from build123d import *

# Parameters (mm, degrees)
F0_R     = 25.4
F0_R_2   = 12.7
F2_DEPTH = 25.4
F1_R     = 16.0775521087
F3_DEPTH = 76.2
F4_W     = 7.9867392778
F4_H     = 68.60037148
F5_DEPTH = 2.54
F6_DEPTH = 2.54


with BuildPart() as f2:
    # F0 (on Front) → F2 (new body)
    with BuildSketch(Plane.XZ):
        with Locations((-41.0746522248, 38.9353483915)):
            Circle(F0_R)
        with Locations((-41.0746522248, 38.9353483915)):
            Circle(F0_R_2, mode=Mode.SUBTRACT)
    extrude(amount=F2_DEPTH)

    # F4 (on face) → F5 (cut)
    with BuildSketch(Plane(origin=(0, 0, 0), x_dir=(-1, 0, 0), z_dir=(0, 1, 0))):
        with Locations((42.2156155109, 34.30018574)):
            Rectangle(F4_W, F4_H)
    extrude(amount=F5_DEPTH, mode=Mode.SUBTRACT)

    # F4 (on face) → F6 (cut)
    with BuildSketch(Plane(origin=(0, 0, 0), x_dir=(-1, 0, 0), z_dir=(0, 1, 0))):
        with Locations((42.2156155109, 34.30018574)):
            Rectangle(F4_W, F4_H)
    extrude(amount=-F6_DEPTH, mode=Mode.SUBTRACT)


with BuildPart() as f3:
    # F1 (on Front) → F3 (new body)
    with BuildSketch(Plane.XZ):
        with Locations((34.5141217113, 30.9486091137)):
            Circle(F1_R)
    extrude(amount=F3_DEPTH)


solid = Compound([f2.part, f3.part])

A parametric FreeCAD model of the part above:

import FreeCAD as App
import Part
import Sketcher
Q = App.Units.Quantity


def add_polygon(sketch, points):
    """Adds a closed chain of lines whose ends are joined by coincident constraints."""
    first, n = sketch.GeometryCount, len(points)
    for a, b in zip(points, points[1:] + points[:1]):
        sketch.addGeometry(Part.LineSegment(App.Vector(*a, 0), App.Vector(*b, 0)), False)
    for i in range(n):
        sketch.addConstraint(Sketcher.Constraint("Coincident", first + i, 2, first + (i + 1) % n, 1))

doc = App.newDocument("Part")
body = doc.addObject("PartDesign::Body", "Body")

# Sketch on XZ plane
sketch1 = body.newObject("Sketcher::SketchObject", "Sketch")
sketch1.AttachmentSupport = (doc.getObject("XZ_Plane"), [""])
sketch1.MapMode = "FlatFace"
sketch1.addGeometry([
    Part.Circle(App.Vector(-41, 39, 0), App.Vector(0, 0, 1), 25),
    Part.Circle(App.Vector(-41, 39, 0), App.Vector(0, 0, 1), 13),
], False)
sketch1.addConstraint([
    Sketcher.Constraint("Coincident", 1, 3, 0, 3),
    Sketcher.Constraint("Diameter", 0, Q("2 in")),
    Sketcher.Constraint("Diameter", 1, Q("1 in")),
    Sketcher.Constraint("DistanceY", -1, 1, 0, 3, 38.935348),
    Sketcher.Constraint("DistanceX", 0, 3, -1, 1, 41.074652),
])
pad1 = body.newObject("PartDesign::Pad", "Pad")
pad1.Profile = sketch1
pad1.Length = Q("1 in")

# Sketch on XZ plane
sketch2 = body.newObject("Sketcher::SketchObject", "Sketch001")
sketch2.AttachmentSupport = (doc.getObject("XZ_Plane"), [""])
sketch2.MapMode = "FlatFace"
add_polygon(sketch2, [(-38, 69), (-38, 0), (-46, 0), (-46, 69)])  # lines 0-3
sketch2.addConstraint([
    Sketcher.Constraint("Vertical", 0),
    Sketcher.Constraint("Horizontal", 1),
    Sketcher.Constraint("Vertical", 2),
    Sketcher.Constraint("Horizontal", 3),
    Sketcher.Constraint("PointOnObject", 0, 2, -1),
    Sketcher.Constraint("DistanceX", 1, 2, 1, 1, 7.986739),
    Sketcher.Constraint("DistanceY", 0, 2, 0, 1, 68.600371),
    Sketcher.Constraint("DistanceX", 0, 2, -1, 1, 38.222246),
])
pocket1 = body.newObject("PartDesign::Pocket", "Pocket")
pocket1.Profile = sketch2
pocket1.Length = Q("0.1 in")

# Sketch on XZ plane
sketch3 = body.newObject("Sketcher::SketchObject", "Sketch002")
sketch3.AttachmentSupport = (doc.getObject("XZ_Plane"), [""])
sketch3.MapMode = "FlatFace"
add_polygon(sketch3, [(-38, 69), (-38, 0), (-46, 0), (-46, 69)])  # lines 0-3
sketch3.addConstraint([
    Sketcher.Constraint("Vertical", 0),
    Sketcher.Constraint("Horizontal", 1),
    Sketcher.Constraint("Vertical", 2),
    Sketcher.Constraint("Horizontal", 3),
    Sketcher.Constraint("PointOnObject", 0, 2, -1),
    Sketcher.Constraint("DistanceX", 1, 2, 1, 1, 7.986739),
    Sketcher.Constraint("DistanceY", 0, 2, 0, 1, 68.600371),
    Sketcher.Constraint("DistanceX", 0, 2, -1, 1, 38.222246),
])
pocket2 = body.newObject("PartDesign::Pocket", "Pocket001")
pocket2.Profile = sketch3
pocket2.Length = Q("0.1 in")
pocket2.Reversed = True
body2 = doc.addObject("PartDesign::Body", "Body001")

# Sketch on XZ plane
sketch4 = body2.newObject("Sketcher::SketchObject", "Sketch003")
sketch4.AttachmentSupport = (doc.getObject("XZ_Plane001"), [""])
sketch4.MapMode = "FlatFace"
sketch4.addGeometry(Part.Circle(App.Vector(35, 31, 0), App.Vector(0, 0, 1), 16), False)
sketch4.addConstraint([
    Sketcher.Constraint("Diameter", 0, 32.155104),
    Sketcher.Constraint("DistanceX", -1, 1, 0, 3, 34.514122),
    Sketcher.Constraint("DistanceY", -1, 1, 0, 3, 30.948609),
])
pad2 = body2.newObject("PartDesign::Pad", "Pad001")
pad2.Profile = sketch4
pad2.Length = Q("3 in")

doc.recompute()
